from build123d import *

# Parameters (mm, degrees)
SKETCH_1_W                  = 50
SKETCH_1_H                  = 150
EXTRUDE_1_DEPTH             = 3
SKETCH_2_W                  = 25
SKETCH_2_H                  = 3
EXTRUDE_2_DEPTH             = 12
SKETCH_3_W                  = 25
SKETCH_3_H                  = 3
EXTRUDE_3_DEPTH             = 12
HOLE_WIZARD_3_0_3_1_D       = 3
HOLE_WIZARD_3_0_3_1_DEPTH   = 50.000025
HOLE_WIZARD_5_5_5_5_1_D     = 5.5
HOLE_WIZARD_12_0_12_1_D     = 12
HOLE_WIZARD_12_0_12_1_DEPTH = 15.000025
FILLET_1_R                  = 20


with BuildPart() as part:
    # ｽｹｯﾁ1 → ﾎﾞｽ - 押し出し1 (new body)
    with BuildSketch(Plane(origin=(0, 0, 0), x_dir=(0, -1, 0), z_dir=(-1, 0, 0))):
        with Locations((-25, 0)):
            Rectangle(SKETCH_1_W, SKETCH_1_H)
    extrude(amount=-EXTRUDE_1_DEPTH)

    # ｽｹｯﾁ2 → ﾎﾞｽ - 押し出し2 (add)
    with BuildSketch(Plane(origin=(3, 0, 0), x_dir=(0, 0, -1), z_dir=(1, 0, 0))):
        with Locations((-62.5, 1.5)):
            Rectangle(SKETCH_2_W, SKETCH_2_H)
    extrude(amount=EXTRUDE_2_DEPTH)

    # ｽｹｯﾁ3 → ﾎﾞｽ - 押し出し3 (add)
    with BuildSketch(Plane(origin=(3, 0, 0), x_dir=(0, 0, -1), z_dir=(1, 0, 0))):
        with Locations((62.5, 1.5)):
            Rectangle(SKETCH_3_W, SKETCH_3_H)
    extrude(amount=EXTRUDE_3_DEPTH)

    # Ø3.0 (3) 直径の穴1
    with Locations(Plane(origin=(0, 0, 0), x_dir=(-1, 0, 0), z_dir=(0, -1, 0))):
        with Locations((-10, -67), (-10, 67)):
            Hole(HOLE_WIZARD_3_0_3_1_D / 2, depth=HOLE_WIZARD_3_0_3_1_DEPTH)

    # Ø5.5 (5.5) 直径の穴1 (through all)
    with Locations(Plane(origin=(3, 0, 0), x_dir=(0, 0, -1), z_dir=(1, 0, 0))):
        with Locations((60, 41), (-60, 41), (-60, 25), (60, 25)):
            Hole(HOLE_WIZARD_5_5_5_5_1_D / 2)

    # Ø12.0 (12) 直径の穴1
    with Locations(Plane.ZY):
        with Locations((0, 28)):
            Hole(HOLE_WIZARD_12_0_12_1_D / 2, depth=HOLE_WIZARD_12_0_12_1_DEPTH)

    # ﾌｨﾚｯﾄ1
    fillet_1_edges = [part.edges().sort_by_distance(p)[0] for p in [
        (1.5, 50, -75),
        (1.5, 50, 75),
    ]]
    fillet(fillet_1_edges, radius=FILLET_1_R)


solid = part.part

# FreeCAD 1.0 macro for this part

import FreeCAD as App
import Part
import Sketcher

V = App.Vector


def edges_at(feature, points):
    """Names of the edges that pass closest to the given points."""
    edges = feature.Shape.Edges
    near = lambda p: min(range(len(edges)), key=lambda i: edges[i].distToShape(Part.Vertex(*p))[0])
    return sorted({f"Edge{near(p) + 1}" for p in points})

doc = App.newDocument("Part")
body = doc.addObject("PartDesign::Body", "Body")

# Sketch on YZ plane
sketch1 = body.newObject("Sketcher::SketchObject", "Sketch")
sketch1.AttachmentSupport = (doc.getObject("YZ_Plane"), [""])
sketch1.MapMode = "FlatFace"
sketch1.addGeometry([
    Part.LineSegment(V(50, 75, 0), V(50, -75, 0)),
    Part.LineSegment(V(50, -75, 0), V(0, -75, 0)),
    Part.LineSegment(V(0, -75, 0), V(0, 75, 0)),
    Part.LineSegment(V(0, 75, 0), V(50, 75, 0)),
], False)
sketch1.addConstraint([
    Sketcher.Constraint("Coincident", 0, 2, 1, 1),
    Sketcher.Constraint("Coincident", 1, 2, 2, 1),
    Sketcher.Constraint("Coincident", 2, 2, 3, 1),
    Sketcher.Constraint("Coincident", 3, 2, 0, 1),
    Sketcher.Constraint("Vertical", 0),
    Sketcher.Constraint("Horizontal", 1),
    Sketcher.Constraint("Vertical", 2),
    Sketcher.Constraint("Horizontal", 3),
    Sketcher.Constraint("Symmetric", 1, 2, 2, 2, -1, 1),
    Sketcher.Constraint("DistanceX", 1, 2, 1, 1, 50.0),
    Sketcher.Constraint("DistanceY", 0, 2, 0, 1, 150.0),
])
pad1 = body.newObject("PartDesign::Pad", "Pad")
pad1.Profile = sketch1
pad1.Length = 3

# Sketch on YZ plane
sketch2 = body.newObject("Sketcher::SketchObject", "Sketch001")
sketch2.AttachmentSupport = (doc.getObject("YZ_Plane"), [""])
sketch2.MapMode = "FlatFace"
sketch2.AttachmentOffset = App.Placement(V(0, 0, 3), App.Rotation())
sketch2.addGeometry([
    Part.LineSegment(V(3, 75, 0), V(0, 75, 0)),
    Part.LineSegment(V(0, 75, 0), V(0, 50, 0)),
    Part.LineSegment(V(0, 50, 0), V(3, 50, 0)),
    Part.LineSegment(V(3, 50, 0), V(3, 75, 0)),
], False)
sketch2.addConstraint([
    Sketcher.Constraint("Coincident", 0, 2, 1, 1),
    Sketcher.Constraint("Coincident", 1, 2, 2, 1),
    Sketcher.Constraint("Coincident", 2, 2, 3, 1),
    Sketcher.Constraint("Coincident", 3, 2, 0, 1),
    Sketcher.Constraint("Horizontal", 0),
    Sketcher.Constraint("Vertical", 1),
    Sketcher.Constraint("Horizontal", 2),
    Sketcher.Constraint("Vertical", 3),
    Sketcher.Constraint("PointOnObject", 0, 2, -2),
    Sketcher.Constraint("DistanceX", 0, 2, 0, 1, 3.0),
    Sketcher.Constraint("DistanceY", 1, 2, 1, 1, 25.0),
    Sketcher.Constraint("DistanceY", -1, 1, 0, 2, 75.0),
])
pad2 = body.newObject("PartDesign::Pad", "Pad001")
pad2.Profile = sketch2
pad2.Length = 12

# Sketch on YZ plane
sketch3 = body.newObject("Sketcher::SketchObject", "Sketch002")
sketch3.AttachmentSupport = (doc.getObject("YZ_Plane"), [""])
sketch3.MapMode = "FlatFace"
sketch3.AttachmentOffset = App.Placement(V(0, 0, 3), App.Rotation())
sketch3.addGeometry([
    Part.LineSegment(V(3, -50, 0), V(0, -50, 0)),
    Part.LineSegment(V(0, -50, 0), V(0, -75, 0)),
    Part.LineSegment(V(0, -75, 0), V(3, -75, 0)),
    Part.LineSegment(V(3, -75, 0), V(3, -50, 0)),
], False)
sketch3.addConstraint([
    Sketcher.Constraint("Coincident", 0, 2, 1, 1),
    Sketcher.Constraint("Coincident", 1, 2, 2, 1),
    Sketcher.Constraint("Coincident", 2, 2, 3, 1),
    Sketcher.Constraint("Coincident", 3, 2, 0, 1),
    Sketcher.Constraint("Horizontal", 0),
    Sketcher.Constraint("Vertical", 1),
    Sketcher.Constraint("Horizontal", 2),
    Sketcher.Constraint("Vertical", 3),
    Sketcher.Constraint("PointOnObject", 0, 2, -2),
    Sketcher.Constraint("DistanceX", 0, 2, 0, 1, 3.0),
    Sketcher.Constraint("DistanceY", 1, 2, 1, 1, 25.0),
    Sketcher.Constraint("DistanceY", 0, 2, -1, 1, 50.0),
])
pad3 = body.newObject("PartDesign::Pad", "Pad002")
pad3.Profile = sketch3
pad3.Length = 12

# Sketch on XZ plane
sketch4 = body.newObject("Sketcher::SketchObject", "Sketch003")
sketch4.AttachmentSupport = (doc.getObject("XZ_Plane"), [""])
sketch4.MapMode = "FlatFace"
sketch4.addGeometry([
    Part.Circle(V(10, 67, 0), V(0, 0, 1), 1.5),
    Part.Circle(V(10, -67, 0), V(0, 0, 1), 1.5),
], False)
sketch4.addConstraint([
    Sketcher.Constraint("Equal", 0, 1),
    Sketcher.Constraint("Symmetric", 0, 3, 1, 3, -1),
    Sketcher.Constraint("Diameter", 0, 3.0),
    Sketcher.Constraint("DistanceX", -1, 1, 0, 3, 10.0),
    Sketcher.Constraint("DistanceY", -1, 1, 0, 3, 67.0),
])
doc.recompute()
hole = body.newObject("PartDesign::Hole", "Hole")
hole.Profile = sketch4
hole.ThreadType = "None"
hole.Diameter = 3
hole.DepthType = "Dimension"
hole.Depth = 50.000025
hole.DrillPoint = "Flat"

# Sketch on YZ plane
sketch5 = body.newObject("Sketcher::SketchObject", "Sketch004")
sketch5.AttachmentSupport = (doc.getObject("YZ_Plane"), [""])
sketch5.MapMode = "FlatFace"
sketch5.AttachmentOffset = App.Placement(V(0, 0, 3), App.Rotation())
sketch5.addGeometry([
    Part.Circle(V(41, -60, 0), V(0, 0, 1), 2.8),
    Part.Circle(V(41, 60, 0), V(0, 0, 1), 2.8),
    Part.Circle(V(25, 60, 0), V(0, 0, 1), 2.8),
    Part.Circle(V(25, -60, 0), V(0, 0, 1), 2.8),
], False)
sketch5.addConstraint([
    Sketcher.Constraint("Equal", 0, 1),
    Sketcher.Constraint("Equal", 1, 2),
    Sketcher.Constraint("Equal", 2, 3),
    Sketcher.Constraint("Symmetric", 0, 3, 1, 3, -1),
    Sketcher.Constraint("Symmetric", 2, 3, 3, 3, -1),
    Sketcher.Constraint("Horizontal", 1, 3, 2, 3),
    Sketcher.Constraint("Diameter", 0, 5.5),
    Sketcher.Constraint("DistanceX", -1, 1, 0, 3, 41.0),
    Sketcher.Constraint("DistanceY", 0, 3, -1, 1, 60.0),
    Sketcher.Constraint("DistanceX", -1, 1, 2, 3, 25.0),
])
doc.recompute()
hole2 = body.newObject("PartDesign::Hole", "Hole001")
hole2.Profile = sketch5
hole2.ThreadType = "None"
hole2.Diameter = 5.5
hole2.DepthType = "ThroughAll"

# Sketch on YZ plane
sketch6 = body.newObject("Sketcher::SketchObject", "Sketch005")
sketch6.AttachmentSupport = (doc.getObject("YZ_Plane"), [""])
sketch6.MapMode = "FlatFace"
sketch6.addGeometry(Part.Circle(V(28, 0, 0), V(0, 0, 1), 6), False)
sketch6.addConstraint([
    Sketcher.Constraint("PointOnObject", 0, 3, -1),
    Sketcher.Constraint("Diameter", 0, 12.0),
    Sketcher.Constraint("DistanceX", -1, 1, 0, 3, 28.0),
])
doc.recompute()
hole3 = body.newObject("PartDesign::Hole", "Hole002")
hole3.Profile = sketch6
hole3.ThreadType = "None"
hole3.Diameter = 12
hole3.DepthType = "Dimension"
hole3.Depth = 15.000025
hole3.DrillPoint = "Flat"
hole3.Reversed = True
doc.recompute()

fillet = body.newObject("PartDesign::Fillet", "Fillet")
fillet.Base = (hole3, edges_at(hole3, [(1.5, 50, -75), (1.5, 50, 75)]))
fillet.Radius = 20

doc.recompute()
